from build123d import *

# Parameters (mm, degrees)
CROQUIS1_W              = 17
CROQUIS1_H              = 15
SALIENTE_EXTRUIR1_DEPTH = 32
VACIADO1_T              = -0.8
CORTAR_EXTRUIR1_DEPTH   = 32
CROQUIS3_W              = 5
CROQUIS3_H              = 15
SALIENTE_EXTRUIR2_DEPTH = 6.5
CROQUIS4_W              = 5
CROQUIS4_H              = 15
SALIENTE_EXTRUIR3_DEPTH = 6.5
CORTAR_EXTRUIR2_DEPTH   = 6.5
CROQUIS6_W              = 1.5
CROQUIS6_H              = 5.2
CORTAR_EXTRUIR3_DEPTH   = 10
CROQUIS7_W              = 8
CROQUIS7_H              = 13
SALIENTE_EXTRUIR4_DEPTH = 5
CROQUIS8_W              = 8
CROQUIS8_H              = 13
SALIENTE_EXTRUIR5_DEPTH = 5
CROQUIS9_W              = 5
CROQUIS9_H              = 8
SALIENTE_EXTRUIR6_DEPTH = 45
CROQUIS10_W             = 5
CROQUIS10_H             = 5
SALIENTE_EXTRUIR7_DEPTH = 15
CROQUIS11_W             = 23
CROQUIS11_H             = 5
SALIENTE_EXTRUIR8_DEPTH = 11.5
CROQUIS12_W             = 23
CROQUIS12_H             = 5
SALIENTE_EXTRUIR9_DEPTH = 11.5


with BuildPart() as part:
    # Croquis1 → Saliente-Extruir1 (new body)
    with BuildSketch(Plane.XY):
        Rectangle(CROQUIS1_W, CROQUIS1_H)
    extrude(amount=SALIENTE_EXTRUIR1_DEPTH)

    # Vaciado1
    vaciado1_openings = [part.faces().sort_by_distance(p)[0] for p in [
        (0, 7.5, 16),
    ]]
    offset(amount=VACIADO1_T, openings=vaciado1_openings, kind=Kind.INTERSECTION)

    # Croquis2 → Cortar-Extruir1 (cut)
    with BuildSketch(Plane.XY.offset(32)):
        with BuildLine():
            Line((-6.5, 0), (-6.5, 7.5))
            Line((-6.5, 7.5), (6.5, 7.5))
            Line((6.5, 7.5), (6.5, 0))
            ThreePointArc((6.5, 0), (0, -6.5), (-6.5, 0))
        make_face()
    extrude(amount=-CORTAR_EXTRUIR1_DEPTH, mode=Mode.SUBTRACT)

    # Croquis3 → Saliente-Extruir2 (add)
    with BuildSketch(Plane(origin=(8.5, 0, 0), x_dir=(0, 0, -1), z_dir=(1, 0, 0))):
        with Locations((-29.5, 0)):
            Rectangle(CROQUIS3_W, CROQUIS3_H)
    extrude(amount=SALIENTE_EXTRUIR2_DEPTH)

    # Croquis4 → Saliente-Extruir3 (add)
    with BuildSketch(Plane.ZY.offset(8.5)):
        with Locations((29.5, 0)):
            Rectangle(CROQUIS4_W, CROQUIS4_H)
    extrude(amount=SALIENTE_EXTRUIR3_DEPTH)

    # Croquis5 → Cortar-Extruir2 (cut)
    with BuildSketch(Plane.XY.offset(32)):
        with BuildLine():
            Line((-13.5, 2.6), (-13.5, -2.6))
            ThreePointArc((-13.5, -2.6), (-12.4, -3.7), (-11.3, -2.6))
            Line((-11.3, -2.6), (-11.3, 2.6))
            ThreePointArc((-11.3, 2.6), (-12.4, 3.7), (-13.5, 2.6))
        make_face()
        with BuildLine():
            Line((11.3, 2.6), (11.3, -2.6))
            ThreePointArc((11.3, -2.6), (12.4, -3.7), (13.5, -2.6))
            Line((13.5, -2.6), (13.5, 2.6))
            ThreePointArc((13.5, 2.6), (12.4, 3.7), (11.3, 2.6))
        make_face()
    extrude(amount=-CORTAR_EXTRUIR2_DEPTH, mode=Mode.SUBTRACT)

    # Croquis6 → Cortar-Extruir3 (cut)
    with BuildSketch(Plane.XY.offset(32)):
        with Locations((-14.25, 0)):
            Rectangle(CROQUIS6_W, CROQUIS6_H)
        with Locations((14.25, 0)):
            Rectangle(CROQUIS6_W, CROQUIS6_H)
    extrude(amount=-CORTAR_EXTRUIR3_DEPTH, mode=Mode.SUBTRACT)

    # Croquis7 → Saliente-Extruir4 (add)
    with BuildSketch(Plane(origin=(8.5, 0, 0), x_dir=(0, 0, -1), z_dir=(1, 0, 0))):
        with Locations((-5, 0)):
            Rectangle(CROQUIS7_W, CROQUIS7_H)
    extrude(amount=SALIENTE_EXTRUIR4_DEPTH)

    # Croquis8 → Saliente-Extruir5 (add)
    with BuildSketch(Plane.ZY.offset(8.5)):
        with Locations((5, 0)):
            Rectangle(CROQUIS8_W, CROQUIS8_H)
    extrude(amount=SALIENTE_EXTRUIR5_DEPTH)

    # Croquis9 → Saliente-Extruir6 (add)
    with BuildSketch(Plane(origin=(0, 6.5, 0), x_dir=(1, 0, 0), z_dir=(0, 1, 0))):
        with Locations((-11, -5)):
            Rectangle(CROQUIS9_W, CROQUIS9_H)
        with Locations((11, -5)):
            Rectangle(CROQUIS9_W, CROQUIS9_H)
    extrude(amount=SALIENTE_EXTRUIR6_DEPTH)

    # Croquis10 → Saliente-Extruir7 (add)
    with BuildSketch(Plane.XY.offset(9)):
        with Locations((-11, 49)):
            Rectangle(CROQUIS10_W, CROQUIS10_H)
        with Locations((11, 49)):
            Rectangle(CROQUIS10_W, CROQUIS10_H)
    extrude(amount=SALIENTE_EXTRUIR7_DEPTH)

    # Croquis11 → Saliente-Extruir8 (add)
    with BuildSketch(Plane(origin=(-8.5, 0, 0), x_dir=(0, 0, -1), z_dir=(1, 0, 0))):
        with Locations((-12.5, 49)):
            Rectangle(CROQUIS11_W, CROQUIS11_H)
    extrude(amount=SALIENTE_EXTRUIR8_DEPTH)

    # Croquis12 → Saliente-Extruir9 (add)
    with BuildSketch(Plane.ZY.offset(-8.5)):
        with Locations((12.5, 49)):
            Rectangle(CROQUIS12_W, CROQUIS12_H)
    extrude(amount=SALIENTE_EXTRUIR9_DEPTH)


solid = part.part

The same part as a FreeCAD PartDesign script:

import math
import FreeCAD as App
import Part
import Sketcher

V = App.Vector


def faces_at(feature, points):
    """Names of the faces that lie closest to the given points."""
    faces = feature.Shape.Faces
    near = lambda p: min(range(len(faces)), key=lambda i: faces[i].distToShape(Part.Vertex(*p))[0])
    return sorted({f"Face{near(p) + 1}" for p in points})

doc = App.newDocument("Part")
body = doc.addObject("PartDesign::Body", "Body")

# Sketch on XY plane
sketch1 = body.newObject("Sketcher::SketchObject", "Sketch")
sketch1.AttachmentSupport = (doc.getObject("XY_Plane"), [""])
sketch1.MapMode = "FlatFace"
sketch1.addGeometry([
    Part.LineSegment(V(-8.5, 7.5, 0), V(-8.5, -7.5, 0)),
    Part.LineSegment(V(-8.5, -7.5, 0), V(8.5, -7.5, 0)),
    Part.LineSegment(V(8.5, -7.5, 0), V(8.5, 7.5, 0)),
    Part.LineSegment(V(8.5, 7.5, 0), V(-8.5, 7.5, 0)),
], False)
sketch1.addConstraint([
    Sketcher.Constraint("Coincident", 0, 2, 1, 1),
    Sketcher.Constraint("Coincident", 1, 2, 2, 1),
    Sketcher.Constraint("Coincident", 2, 2, 3, 1),
    Sketcher.Constraint("Coincident", 3, 2, 0, 1),
    Sketcher.Constraint("Vertical", 0),
    Sketcher.Constraint("Horizontal", 1),
    Sketcher.Constraint("Vertical", 2),
    Sketcher.Constraint("Horizontal", 3),
    Sketcher.Constraint("Symmetric", 0, 2, 2, 2, -1, 1),
    Sketcher.Constraint("DistanceX", 1, 1, 1, 2, 17.0),
    Sketcher.Constraint("DistanceY", 0, 2, 0, 1, 15.0),
])
pad1 = body.newObject("PartDesign::Pad", "Pad")
pad1.Profile = sketch1
pad1.Length = 32
doc.recompute()

thickness = body.newObject("PartDesign::Thickness", "Thickness")
thickness.Base = (pad1, faces_at(pad1, [(0, 7.5, 16)]))
thickness.Value = 0.8
thickness.Reversed = True
thickness.Join = "Intersection"

# Sketch on XY plane
sketch2 = body.newObject("Sketcher::SketchObject", "Sketch001")
sketch2.AttachmentSupport = (doc.getObject("XY_Plane"), [""])
sketch2.MapMode = "FlatFace"
sketch2.AttachmentOffset = App.Placement(V(0, 0, 32), App.Rotation())
sketch2.addGeometry([
    Part.LineSegment(V(-6.5, 7.5, 0), V(-6.5, 0, 0)),
    Part.ArcOfCircle(Part.Circle(V(0, 0, 0), V(0, 0, 1), 6.5), math.radians(180), math.radians(360)),
    Part.LineSegment(V(6.5, 0, 0), V(6.5, 7.5, 0)),
    Part.LineSegment(V(6.5, 7.5, 0), V(-6.5, 7.5, 0)),
], False)
sketch2.addConstraint([
    Sketcher.Constraint("Tangent", 0, 2, 1, 1),
    Sketcher.Constraint("Tangent", 1, 2, 2, 1),
    Sketcher.Constraint("Coincident", 2, 2, 3, 1),
    Sketcher.Constraint("Coincident", 3, 2, 0, 1),
    Sketcher.Constraint("Vertical", 0),
    Sketcher.Constraint("Vertical", 2),
    Sketcher.Constraint("Horizontal", 3),
    Sketcher.Constraint("Coincident", 1, 3, -1, 1),
    Sketcher.Constraint("Radius", 1, 6.5),
    Sketcher.Constraint("DistanceY", 0, 2, 0, 1, 7.5),
])
pocket1 = body.newObject("PartDesign::Pocket", "Pocket")
pocket1.Profile = sketch2
pocket1.Length = 32

# Sketch on YZ plane
sketch3 = body.newObject("Sketcher::SketchObject", "Sketch002")
sketch3.AttachmentSupport = (doc.getObject("YZ_Plane"), [""])
sketch3.MapMode = "FlatFace"
sketch3.AttachmentOffset = App.Placement(V(0, 0, 8.5), App.Rotation())
sketch3.addGeometry([
    Part.LineSegment(V(7.5, 32, 0), V(-7.5, 32, 0)),
    Part.LineSegment(V(-7.5, 32, 0), V(-7.5, 27, 0)),
    Part.LineSegment(V(-7.5, 27, 0), V(7.5, 27, 0)),
    Part.LineSegment(V(7.5, 27, 0), V(7.5, 32, 0)),
], False)
sketch3.addConstraint([
    Sketcher.Constraint("Coincident", 0, 2, 1, 1),
    Sketcher.Constraint("Coincident", 1, 2, 2, 1),
    Sketcher.Constraint("Coincident", 2, 2, 3, 1),
    Sketcher.Constraint("Coincident", 3, 2, 0, 1),
    Sketcher.Constraint("Horizontal", 0),
    Sketcher.Constraint("Vertical", 1),
    Sketcher.Constraint("Horizontal", 2),
    Sketcher.Constraint("Vertical", 3),
    Sketcher.Constraint("DistanceX", 0, 2, 0, 1, 15.0),
    Sketcher.Constraint("DistanceY", 1, 2, 1, 1, 5.0),
    Sketcher.Constraint("DistanceY", -1, 1, 0, 2, 32.0),
    Sketcher.Constraint("DistanceX", 0, 2, -1, 1, 7.5),
])
pad2 = body.newObject("PartDesign::Pad", "Pad001")
pad2.Profile = sketch3
pad2.Length = 6.5

# Sketch on YZ plane
sketch4 = body.newObject("Sketcher::SketchObject", "Sketch003")
sketch4.AttachmentSupport = (doc.getObject("YZ_Plane"), [""])
sketch4.MapMode = "FlatFace"
sketch4.AttachmentOffset = App.Placement(V(0, 0, -8.5), App.Rotation())
sketch4.addGeometry([
    Part.LineSegment(V(7.5, 27, 0), V(-7.5, 27, 0)),
    Part.LineSegment(V(-7.5, 27, 0), V(-7.5, 32, 0)),
    Part.LineSegment(V(-7.5, 32, 0), V(7.5, 32, 0)),
    Part.LineSegment(V(7.5, 32, 0), V(7.5, 27, 0)),
], False)
sketch4.addConstraint([
    Sketcher.Constraint("Coincident", 0, 2, 1, 1),
    Sketcher.Constraint("Coincident", 1, 2, 2, 1),
    Sketcher.Constraint("Coincident", 2, 2, 3, 1),
    Sketcher.Constraint("Coincident", 3, 2, 0, 1),
    Sketcher.Constraint("Horizontal", 0),
    Sketcher.Constraint("Vertical", 1),
    Sketcher.Constraint("Horizontal", 2),
    Sketcher.Constraint("Vertical", 3),
    Sketcher.Constraint("DistanceX", 0, 2, 0, 1, 15.0),
    Sketcher.Constraint("DistanceY", 1, 1, 1, 2, 5.0),
    Sketcher.Constraint("DistanceY", -1, 1, 0, 2, 27.0),
    Sketcher.Constraint("DistanceX", 0, 2, -1, 1, 7.5),
])
pad3 = body.newObject("PartDesign::Pad", "Pad002")
pad3.Profile = sketch4
pad3.Length = 6.5
pad3.Reversed = True

# Sketch on XY plane
sketch5 = body.newObject("Sketcher::SketchObject", "Sketch004")
sketch5.AttachmentSupport = (doc.getObject("XY_Plane"), [""])
sketch5.MapMode = "FlatFace"
sketch5.AttachmentOffset = App.Placement(V(0, 0, 32), App.Rotation())
sketch5.addGeometry([
    Part.LineSegment(V(-13.5, 2.6, 0), V(-13.5, -2.6, 0)),  # 0
    Part.ArcOfCircle(Part.Circle(V(-12.4, -2.6, 0), V(0, 0, 1), 1.1), math.radians(180), math.radians(360)),  # 1
    Part.LineSegment(V(-11.3, -2.6, 0), V(-11.3, 2.6, 0)),  # 2
    Part.ArcOfCircle(Part.Circle(V(-12.4, 2.6, 0), V(0, 0, 1), 1.1), math.radians(0), math.radians(180)),  # 3
    Part.LineSegment(V(11.3, 2.6, 0), V(11.3, -2.6, 0)),  # 4
    Part.ArcOfCircle(Part.Circle(V(12.4, -2.6, 0), V(0, 0, 1), 1.1), math.radians(180), math.radians(360)),  # 5
    Part.LineSegment(V(13.5, -2.6, 0), V(13.5, 2.6, 0)),  # 6
    Part.ArcOfCircle(Part.Circle(V(12.4, 2.6, 0), V(0, 0, 1), 1.1), math.radians(0), math.radians(180)),  # 7
], False)
sketch5.addConstraint([
    Sketcher.Constraint("Tangent", 0, 2, 1, 1),
    Sketcher.Constraint("Tangent", 1, 2, 2, 1),
    Sketcher.Constraint("Tangent", 2, 2, 3, 1),
    Sketcher.Constraint("Tangent", 3, 2, 0, 1),
    Sketcher.Constraint("Tangent", 4, 2, 5, 1),
    Sketcher.Constraint("Tangent", 5, 2, 6, 1),
    Sketcher.Constraint("Tangent", 6, 2, 7, 1),
    Sketcher.Constraint("Tangent", 7, 2, 4, 1),
    Sketcher.Constraint("Vertical", 0),
    Sketcher.Constraint("Vertical", 2),
    Sketcher.Constraint("Vertical", 4),
    Sketcher.Constraint("Vertical", 6),
    Sketcher.Constraint("Equal", 3, 5),
    Sketcher.Constraint("Symmetric", 3, 3, 5, 3, -1, 1),
    Sketcher.Constraint("Horizontal", 1, 3, 5, 3),
    Sketcher.Constraint("Horizontal", 3, 3, 7, 3),
    Sketcher.Constraint("Radius", 1, 1.1),
    Sketcher.Constraint("DistanceY", 0, 2, 0, 1, 5.2),
    Sketcher.Constraint("DistanceX", 1, 3, -1, 1, 12.4),
])
pocket2 = body.newObject("PartDesign::Pocket", "Pocket001")
pocket2.Profile = sketch5
pocket2.Length = 6.5

# Sketch on XY plane
sketch6 = body.newObject("Sketcher::SketchObject", "Sketch005")
sketch6.AttachmentSupport = (doc.getObject("XY_Plane"), [""])
sketch6.MapMode = "FlatFace"
sketch6.AttachmentOffset = App.Placement(V(0, 0, 32), App.Rotation())
sketch6.addGeometry([
    Part.LineSegment(V(-15, 2.6, 0), V(-15, -2.6, 0)),  # 0
    Part.LineSegment(V(-15, -2.6, 0), V(-13.5, -2.6, 0)),  # 1
    Part.LineSegment(V(-13.5, -2.6, 0), V(-13.5, 2.6, 0)),  # 2
    Part.LineSegment(V(-13.5, 2.6, 0), V(-15, 2.6, 0)),  # 3
    Part.LineSegment(V(13.5, 2.6, 0), V(13.5, -2.6, 0)),  # 4
    Part.LineSegment(V(13.5, -2.6, 0), V(15, -2.6, 0)),  # 5
    Part.LineSegment(V(15, -2.6, 0), V(15, 2.6, 0)),  # 6
    Part.LineSegment(V(15, 2.6, 0), V(13.5, 2.6, 0)),  # 7
], False)
sketch6.addConstraint([
    Sketcher.Constraint("Coincident", 0, 2, 1, 1),
    Sketcher.Constraint("Coincident", 1, 2, 2, 1),
    Sketcher.Constraint("Coincident", 2, 2, 3, 1),
    Sketcher.Constraint("Coincident", 3, 2, 0, 1),
    Sketcher.Constraint("Coincident", 4, 2, 5, 1),
    Sketcher.Constraint("Coincident", 5, 2, 6, 1),
    Sketcher.Constraint("Coincident", 6, 2, 7, 1),
    Sketcher.Constraint("Coincident", 7, 2, 4, 1),
    Sketcher.Constraint("Vertical", 0),
    Sketcher.Constraint("Horizontal", 1),
    Sketcher.Constraint("Vertical", 2),
    Sketcher.Constraint("Horizontal", 3),
    Sketcher.Constraint("Vertical", 4),
    Sketcher.Constraint("Horizontal", 5),
    Sketcher.Constraint("Vertical", 6),
    Sketcher.Constraint("Horizontal", 7),
    Sketcher.Constraint("Symmetric", 2, 2, 4, 2, -1, 1),
    Sketcher.Constraint("Symmetric", 0, 2, 6, 2, -1, 1),
    Sketcher.Constraint("Horizontal", 1, 2, 4, 2),
    Sketcher.Constraint("DistanceX", 1, 1, 1, 2, 1.5),
    Sketcher.Constraint("DistanceY", 0, 2, 0, 1, 5.2),
    Sketcher.Constraint("DistanceX", 0, 2, -1, 1, 15.0),
])
pocket3 = body.newObject("PartDesign::Pocket", "Pocket002")
pocket3.Profile = sketch6
pocket3.Length = 10

# Sketch on YZ plane
sketch7 = body.newObject("Sketcher::SketchObject", "Sketch006")
sketch7.AttachmentSupport = (doc.getObject("YZ_Plane"), [""])
sketch7.MapMode = "FlatFace"
sketch7.AttachmentOffset = App.Placement(V(0, 0, 8.5), App.Rotation())
sketch7.addGeometry([
    Part.LineSegment(V(6.5, 9, 0), V(-6.5, 9, 0)),
    Part.LineSegment(V(-6.5, 9, 0), V(-6.5, 1, 0)),
    Part.LineSegment(V(-6.5, 1, 0), V(6.5, 1, 0)),
    Part.LineSegment(V(6.5, 1, 0), V(6.5, 9, 0)),
], False)
sketch7.addConstraint([
    Sketcher.Constraint("Coincident", 0, 2, 1, 1),
    Sketcher.Constraint("Coincident", 1, 2, 2, 1),
    Sketcher.Constraint("Coincident", 2, 2, 3, 1),
    Sketcher.Constraint("Coincident", 3, 2, 0, 1),
    Sketcher.Constraint("Horizontal", 0),
    Sketcher.Constraint("Vertical", 1),
    Sketcher.Constraint("Horizontal", 2),
    Sketcher.Constraint("Vertical", 3),
    Sketcher.Constraint("DistanceX", 0, 2, 0, 1, 13.0),
    Sketcher.Constraint("DistanceY", 1, 2, 1, 1, 8.0),
    Sketcher.Constraint("DistanceY", -1, 1, 0, 2, 9.0),
    Sketcher.Constraint("DistanceX", 0, 2, -1, 1, 6.5),
])
pad4 = body.newObject("PartDesign::Pad", "Pad003")
pad4.Profile = sketch7
pad4.Length = 5

# Sketch on YZ plane
sketch8 = body.newObject("Sketcher::SketchObject", "Sketch007")
sketch8.AttachmentSupport = (doc.getObject("YZ_Plane"), [""])
sketch8.MapMode = "FlatFace"
sketch8.AttachmentOffset = App.Placement(V(0, 0, -8.5), App.Rotation())
sketch8.addGeometry([
    Part.LineSegment(V(6.5, 1, 0), V(-6.5, 1, 0)),
    Part.LineSegment(V(-6.5, 1, 0), V(-6.5, 9, 0)),
    Part.LineSegment(V(-6.5, 9, 0), V(6.5, 9, 0)),
    Part.LineSegment(V(6.5, 9, 0), V(6.5, 1, 0)),
], False)
sketch8.addConstraint([
    Sketcher.Constraint("Coincident", 0, 2, 1, 1),
    Sketcher.Constraint("Coincident", 1, 2, 2, 1),
    Sketcher.Constraint("Coincident", 2, 2, 3, 1),
    Sketcher.Constraint("Coincident", 3, 2, 0, 1),
    Sketcher.Constraint("Horizontal", 0),
    Sketcher.Constraint("Vertical", 1),
    Sketcher.Constraint("Horizontal", 2),
    Sketcher.Constraint("Vertical", 3),
    Sketcher.Constraint("DistanceX", 0, 2, 0, 1, 13.0),
    Sketcher.Constraint("DistanceY", 1, 1, 1, 2, 8.0),
    Sketcher.Constraint("DistanceY", -1, 1, 0, 2, 1.0),
    Sketcher.Constraint("DistanceX", 0, 2, -1, 1, 6.5),
])
pad5 = body.newObject("PartDesign::Pad", "Pad004")
pad5.Profile = sketch8
pad5.Length = 5
pad5.Reversed = True

# Sketch on XZ plane
sketch9 = body.newObject("Sketcher::SketchObject", "Sketch008")
sketch9.AttachmentSupport = (doc.getObject("XZ_Plane"), [""])
sketch9.MapMode = "FlatFace"
sketch9.AttachmentOffset = App.Placement(V(0, 0, -6.5), App.Rotation())
sketch9.addGeometry([
    Part.LineSegment(V(-13.5, 1, 0), V(-13.5, 9, 0)),  # 0
    Part.LineSegment(V(-13.5, 9, 0), V(-8.5, 9, 0)),  # 1
    Part.LineSegment(V(-8.5, 9, 0), V(-8.5, 1, 0)),  # 2
    Part.LineSegment(V(-8.5, 1, 0), V(-13.5, 1, 0)),  # 3
    Part.LineSegment(V(8.5, 1, 0), V(8.5, 9, 0)),  # 4
    Part.LineSegment(V(8.5, 9, 0), V(13.5, 9, 0)),  # 5
    Part.LineSegment(V(13.5, 9, 0), V(13.5, 1, 0)),  # 6
    Part.LineSegment(V(13.5, 1, 0), V(8.5, 1, 0)),  # 7
], False)
sketch9.addConstraint([
    Sketcher.Constraint("Coincident", 0, 2, 1, 1),
    Sketcher.Constraint("Coincident", 1, 2, 2, 1),
    Sketcher.Constraint("Coincident", 2, 2, 3, 1),
    Sketcher.Constraint("Coincident", 3, 2, 0, 1),
    Sketcher.Constraint("Coincident", 4, 2, 5, 1),
    Sketcher.Constraint("Coincident", 5, 2, 6, 1),
    Sketcher.Constraint("Coincident", 6, 2, 7, 1),
    Sketcher.Constraint("Coincident", 7, 2, 4, 1),
    Sketcher.Constraint("Vertical", 0),
    Sketcher.Constraint("Horizontal", 1),
    Sketcher.Constraint("Vertical", 2),
    Sketcher.Constraint("Horizontal", 3),
    Sketcher.Constraint("Vertical", 4),
    Sketcher.Constraint("Horizontal", 5),
    Sketcher.Constraint("Vertical", 6),
    Sketcher.Constraint("Horizontal", 7),
    Sketcher.Constraint("Symmetric", 1, 2, 4, 2, -2),
    Sketcher.Constraint("Symmetric", 3, 2, 6, 2, -2),
    Sketcher.Constraint("DistanceX", 1, 1, 1, 2, 5.0),
    Sketcher.Constraint("DistanceY", 0, 1, 0, 2, 8.0),
    Sketcher.Constraint("DistanceY", -1, 1, 0, 2, 9.0),
    Sketcher.Constraint("DistanceX", 1, 2, 4, 2, 17.0),
])
pad6 = body.newObject("PartDesign::Pad", "Pad005")
pad6.Profile = sketch9
pad6.Length = 45
pad6.Reversed = True

# Sketch on XY plane
sketch10 = body.newObject("Sketcher::SketchObject", "Sketch009")
sketch10.AttachmentSupport = (doc.getObject("XY_Plane"), [""])
sketch10.MapMode = "FlatFace"
sketch10.AttachmentOffset = App.Placement(V(0, 0, 9), App.Rotation())
sketch10.addGeometry([
    Part.LineSegment(V(-13.5, 51.5, 0), V(-13.5, 46.5, 0)),  # 0
    Part.LineSegment(V(-13.5, 46.5, 0), V(-8.5, 46.5, 0)),  # 1
    Part.LineSegment(V(-8.5, 46.5, 0), V(-8.5, 51.5, 0)),  # 2
    Part.LineSegment(V(-8.5, 51.5, 0), V(-13.5, 51.5, 0)),  # 3
    Part.LineSegment(V(8.5, 51.5, 0), V(8.5, 46.5, 0)),  # 4
    Part.LineSegment(V(8.5, 46.5, 0), V(13.5, 46.5, 0)),  # 5
    Part.LineSegment(V(13.5, 46.5, 0), V(13.5, 51.5, 0)),  # 6
    Part.LineSegment(V(13.5, 51.5, 0), V(8.5, 51.5, 0)),  # 7
], False)
sketch10.addConstraint([
    Sketcher.Constraint("Coincident", 0, 2, 1, 1),
    Sketcher.Constraint("Coincident", 1, 2, 2, 1),
    Sketcher.Constraint("Coincident", 2, 2, 3, 1),
    Sketcher.Constraint("Coincident", 3, 2, 0, 1),
    Sketcher.Constraint("Coincident", 4, 2, 5, 1),
    Sketcher.Constraint("Coincident", 5, 2, 6, 1),
    Sketcher.Constraint("Coincident", 6, 2, 7, 1),
    Sketcher.Constraint("Coincident", 7, 2, 4, 1),
    Sketcher.Constraint("Vertical", 0),
    Sketcher.Constraint("Horizontal", 1),
    Sketcher.Constraint("Vertical", 2),
    Sketcher.Constraint("Horizontal", 3),
    Sketcher.Constraint("Vertical", 4),
    Sketcher.Constraint("Horizontal", 5),
    Sketcher.Constraint("Vertical", 6),
    Sketcher.Constraint("Horizontal", 7),
    Sketcher.Constraint("Symmetric", 1, 2, 4, 2, -2),
    Sketcher.Constraint("Symmetric", 3, 2, 6, 2, -2),
    Sketcher.Constraint("Equal", 7, 0),
    Sketcher.Constraint("DistanceX", 1, 1, 1, 2, 5.0),
    Sketcher.Constraint("DistanceX", 1, 2, 4, 2, 17.0),
    Sketcher.Constraint("DistanceY", -1, 1, 0, 2, 46.5),
])
pad7 = body.newObject("PartDesign::Pad", "Pad006")
pad7.Profile = sketch10
pad7.Length = 15

# Sketch on YZ plane
sketch11 = body.newObject("Sketcher::SketchObject", "Sketch010")
sketch11.AttachmentSupport = (doc.getObject("YZ_Plane"), [""])
sketch11.MapMode = "FlatFace"
sketch11.AttachmentOffset = App.Placement(V(0, 0, -8.5), App.Rotation())
sketch11.addGeometry([
    Part.LineSegment(V(51.5, 24, 0), V(46.5, 24, 0)),
    Part.LineSegment(V(46.5, 24, 0), V(46.5, 1, 0)),
    Part.LineSegment(V(46.5, 1, 0), V(51.5, 1, 0)),
    Part.LineSegment(V(51.5, 1, 0), V(51.5, 24, 0)),
], False)
sketch11.addConstraint([
    Sketcher.Constraint("Coincident", 0, 2, 1, 1),
    Sketcher.Constraint("Coincident", 1, 2, 2, 1),
    Sketcher.Constraint("Coincident", 2, 2, 3, 1),
    Sketcher.Constraint("Coincident", 3, 2, 0, 1),
    Sketcher.Constraint("Horizontal", 0),
    Sketcher.Constraint("Vertical", 1),
    Sketcher.Constraint("Horizontal", 2),
    Sketcher.Constraint("Vertical", 3),
    Sketcher.Constraint("DistanceX", 0, 2, 0, 1, 5.0),
    Sketcher.Constraint("DistanceY", 1, 2, 1, 1, 23.0),
    Sketcher.Constraint("DistanceY", -1, 1, 0, 2, 24.0),
    Sketcher.Constraint("DistanceX", -1, 1, 0, 2, 46.5),
])
pad8 = body.newObject("PartDesign::Pad", "Pad007")
pad8.Profile = sketch11
pad8.Length = 11.5

# Sketch on YZ plane
sketch12 = body.newObject("Sketcher::SketchObject", "Sketch011")
sketch12.AttachmentSupport = (doc.getObject("YZ_Plane"), [""])
sketch12.MapMode = "FlatFace"
sketch12.AttachmentOffset = App.Placement(V(0, 0, 8.5), App.Rotation())
sketch12.addGeometry([
    Part.LineSegment(V(51.5, 1, 0), V(46.5, 1, 0)),
    Part.LineSegment(V(46.5, 1, 0), V(46.5, 24, 0)),
    Part.LineSegment(V(46.5, 24, 0), V(51.5, 24, 0)),
    Part.LineSegment(V(51.5, 24, 0), V(51.5, 1, 0)),
], False)
sketch12.addConstraint([
    Sketcher.Constraint("Coincident", 0, 2, 1, 1),
    Sketcher.Constraint("Coincident", 1, 2, 2, 1),
    Sketcher.Constraint("Coincident", 2, 2, 3, 1),
    Sketcher.Constraint("Coincident", 3, 2, 0, 1),
    Sketcher.Constraint("Horizontal", 0),
    Sketcher.Constraint("Vertical", 1),
    Sketcher.Constraint("Horizontal", 2),
    Sketcher.Constraint("Vertical", 3),
    Sketcher.Constraint("DistanceX", 0, 2, 0, 1, 5.0),
    Sketcher.Constraint("DistanceY", 1, 1, 1, 2, 23.0),
    Sketcher.Constraint("DistanceY", -1, 1, 0, 2, 1.0),
    Sketcher.Constraint("DistanceX", -1, 1, 0, 2, 46.5),
])
pad9 = body.newObject("PartDesign::Pad", "Pad008")
pad9.Profile = sketch12
pad9.Length = 11.5
pad9.Reversed = True

doc.recompute()
